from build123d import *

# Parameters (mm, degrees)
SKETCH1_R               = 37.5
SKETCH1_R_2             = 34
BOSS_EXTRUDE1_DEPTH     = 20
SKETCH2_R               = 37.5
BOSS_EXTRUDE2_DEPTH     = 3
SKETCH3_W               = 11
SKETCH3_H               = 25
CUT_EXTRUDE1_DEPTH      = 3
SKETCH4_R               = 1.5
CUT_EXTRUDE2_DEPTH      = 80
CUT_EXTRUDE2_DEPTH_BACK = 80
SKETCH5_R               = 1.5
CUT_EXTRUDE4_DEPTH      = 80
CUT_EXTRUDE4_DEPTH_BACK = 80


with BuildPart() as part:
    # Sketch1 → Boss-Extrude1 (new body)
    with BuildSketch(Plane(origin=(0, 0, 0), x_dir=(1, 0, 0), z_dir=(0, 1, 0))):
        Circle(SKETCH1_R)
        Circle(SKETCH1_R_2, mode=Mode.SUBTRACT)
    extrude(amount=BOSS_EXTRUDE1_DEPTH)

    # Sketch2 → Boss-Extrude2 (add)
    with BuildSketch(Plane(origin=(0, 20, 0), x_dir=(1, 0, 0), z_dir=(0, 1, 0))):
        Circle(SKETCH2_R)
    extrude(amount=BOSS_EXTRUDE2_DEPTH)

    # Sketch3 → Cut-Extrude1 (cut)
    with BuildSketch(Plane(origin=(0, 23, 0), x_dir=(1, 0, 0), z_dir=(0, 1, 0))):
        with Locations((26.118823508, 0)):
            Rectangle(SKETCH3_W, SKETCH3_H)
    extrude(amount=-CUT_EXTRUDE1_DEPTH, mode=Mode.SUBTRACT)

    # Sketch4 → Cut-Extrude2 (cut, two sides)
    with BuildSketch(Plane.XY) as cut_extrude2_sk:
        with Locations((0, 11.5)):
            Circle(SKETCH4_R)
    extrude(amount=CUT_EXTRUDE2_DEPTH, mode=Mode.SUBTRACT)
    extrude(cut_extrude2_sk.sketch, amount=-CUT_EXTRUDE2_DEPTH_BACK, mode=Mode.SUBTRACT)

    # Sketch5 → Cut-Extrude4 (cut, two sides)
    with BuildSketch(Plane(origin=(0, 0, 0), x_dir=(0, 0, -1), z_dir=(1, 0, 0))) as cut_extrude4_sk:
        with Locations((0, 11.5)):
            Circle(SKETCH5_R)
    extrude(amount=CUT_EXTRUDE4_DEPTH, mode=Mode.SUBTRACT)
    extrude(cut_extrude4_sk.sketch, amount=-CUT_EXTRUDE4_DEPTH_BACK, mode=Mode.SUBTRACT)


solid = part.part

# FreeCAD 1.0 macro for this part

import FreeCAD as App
import Part
import Sketcher
from FreeCAD import Vector


def add_polygon(sketch, points):
    """Adds a closed chain of lines whose ends are joined by coincident constraints."""
    first, n = sketch.GeometryCount, len(points)
    for a, b in zip(points, points[1:] + points[:1]):
        sketch.addGeometry(Part.LineSegment(App.Vector(*a, 0), App.Vector(*b, 0)), False)
    for i in range(n):
        sketch.addConstraint(Sketcher.Constraint("Coincident", first + i, 2, first + (i + 1) % n, 1))

doc = App.newDocument("Part")
body = doc.addObject("PartDesign::Body", "Body")

# Sketch on XZ plane
sketch1 = body.newObject("Sketcher::SketchObject", "Sketch")
sketch1.AttachmentSupport = (doc.getObject("XZ_Plane"), [""])
sketch1.MapMode = "FlatFace"
sketch1.addGeometry(Part.Circle(Vector(0, 0, 0), Vector(0, 0, 1), 38), False)
sketch1.addGeometry(Part.Circle(Vector(0, 0, 0), Vector(0, 0, 1), 34), False)
sketch1.addConstraint(Sketcher.Constraint("Coincident", 0, 3, -1, 1))
sketch1.addConstraint(Sketcher.Constraint("Coincident", 1, 3, -1, 1))
sketch1.addConstraint(Sketcher.Constraint("Diameter", 0, 75.0))
sketch1.addConstraint(Sketcher.Constraint("Diameter", 1, 68.0))
pad1 = body.newObject("PartDesign::Pad", "Pad")
pad1.Profile = sketch1
pad1.Length = 20
pad1.Reversed = True

# Sketch on XZ plane
sketch2 = body.newObject("Sketcher::SketchObject", "Sketch001")
sketch2.AttachmentSupport = (doc.getObject("XZ_Plane"), [""])
sketch2.MapMode = "FlatFace"
sketch2.AttachmentOffset = App.Placement(Vector(0, 0, -20), App.Rotation())
sketch2.addGeometry(Part.Circle(Vector(0, 0, 0), Vector(0, 0, 1), 38), False)
sketch2.addConstraint(Sketcher.Constraint("Coincident", 0, 3, -1, 1))
sketch2.addConstraint(Sketcher.Constraint("Diameter", 0, 75.0))
pad2 = body.newObject("PartDesign::Pad", "Pad001")
pad2.Profile = sketch2
pad2.Length = 3
pad2.Reversed = True

# Sketch on XZ plane
sketch3 = body.newObject("Sketcher::SketchObject", "Sketch002")
sketch3.AttachmentSupport = (doc.getObject("XZ_Plane"), [""])
sketch3.MapMode = "FlatFace"
sketch3.AttachmentOffset = App.Placement(Vector(0, 0, -23), App.Rotation())
add_polygon(sketch3, [(21, -12), (21, 12), (32, 12), (32, -12)])  # lines 0-3
sketch3.addConstraint(Sketcher.Constraint("Vertical", 0))
sketch3.addConstraint(Sketcher.Constraint("Horizontal", 1))
sketch3.addConstraint(Sketcher.Constraint("Vertical", 2))
sketch3.addConstraint(Sketcher.Constraint("Horizontal", 3))
sketch3.addConstraint(Sketcher.Constraint("DistanceX", 1, 1, 1, 2, 11.0))
sketch3.addConstraint(Sketcher.Constraint("DistanceY", 0, 1, 0, 2, 25.0))
sketch3.addConstraint(Sketcher.Constraint("DistanceY", -1, 1, 0, 2, 12.5))
sketch3.addConstraint(Sketcher.Constraint("DistanceX", -1, 1, 0, 2, 20.618824))
pocket1 = body.newObject("PartDesign::Pocket", "Pocket")
pocket1.Profile = sketch3
pocket1.Length = 3
pocket1.Reversed = True

# Sketch on XY plane
sketch4 = body.newObject("Sketcher::SketchObject", "Sketch003")
sketch4.AttachmentSupport = (doc.getObject("XY_Plane"), [""])
sketch4.MapMode = "FlatFace"
sketch4.addGeometry(Part.Circle(Vector(0, 11.5, 0), Vector(0, 0, 1), 1.5), False)
sketch4.addConstraint(Sketcher.Constraint("PointOnObject", 0, 3, -2))
sketch4.addConstraint(Sketcher.Constraint("Diameter", 0, 3.0))
sketch4.addConstraint(Sketcher.Constraint("DistanceY", -1, 1, 0, 3, 11.5))
pocket2 = body.newObject("PartDesign::Pocket", "Pocket001")
pocket2.Profile = sketch4
pocket2.Type = "ThroughAll"
pocket2.Midplane = True

# Sketch on YZ plane
sketch5 = body.newObject("Sketcher::SketchObject", "Sketch004")
sketch5.AttachmentSupport = (doc.getObject("YZ_Plane"), [""])
sketch5.MapMode = "FlatFace"
sketch5.addGeometry(Part.Circle(Vector(11.5, 0, 0), Vector(0, 0, 1), 1.5), False)
sketch5.addConstraint(Sketcher.Constraint("PointOnObject", 0, 3, -1))
sketch5.addConstraint(Sketcher.Constraint("Diameter", 0, 3.0))
sketch5.addConstraint(Sketcher.Constraint("DistanceX", -1, 1, 0, 3, 11.5))
pocket3 = body.newObject("PartDesign::Pocket", "Pocket002")
pocket3.Profile = sketch5
pocket3.Type = "ThroughAll"
pocket3.Midplane = True

doc.recompute()
